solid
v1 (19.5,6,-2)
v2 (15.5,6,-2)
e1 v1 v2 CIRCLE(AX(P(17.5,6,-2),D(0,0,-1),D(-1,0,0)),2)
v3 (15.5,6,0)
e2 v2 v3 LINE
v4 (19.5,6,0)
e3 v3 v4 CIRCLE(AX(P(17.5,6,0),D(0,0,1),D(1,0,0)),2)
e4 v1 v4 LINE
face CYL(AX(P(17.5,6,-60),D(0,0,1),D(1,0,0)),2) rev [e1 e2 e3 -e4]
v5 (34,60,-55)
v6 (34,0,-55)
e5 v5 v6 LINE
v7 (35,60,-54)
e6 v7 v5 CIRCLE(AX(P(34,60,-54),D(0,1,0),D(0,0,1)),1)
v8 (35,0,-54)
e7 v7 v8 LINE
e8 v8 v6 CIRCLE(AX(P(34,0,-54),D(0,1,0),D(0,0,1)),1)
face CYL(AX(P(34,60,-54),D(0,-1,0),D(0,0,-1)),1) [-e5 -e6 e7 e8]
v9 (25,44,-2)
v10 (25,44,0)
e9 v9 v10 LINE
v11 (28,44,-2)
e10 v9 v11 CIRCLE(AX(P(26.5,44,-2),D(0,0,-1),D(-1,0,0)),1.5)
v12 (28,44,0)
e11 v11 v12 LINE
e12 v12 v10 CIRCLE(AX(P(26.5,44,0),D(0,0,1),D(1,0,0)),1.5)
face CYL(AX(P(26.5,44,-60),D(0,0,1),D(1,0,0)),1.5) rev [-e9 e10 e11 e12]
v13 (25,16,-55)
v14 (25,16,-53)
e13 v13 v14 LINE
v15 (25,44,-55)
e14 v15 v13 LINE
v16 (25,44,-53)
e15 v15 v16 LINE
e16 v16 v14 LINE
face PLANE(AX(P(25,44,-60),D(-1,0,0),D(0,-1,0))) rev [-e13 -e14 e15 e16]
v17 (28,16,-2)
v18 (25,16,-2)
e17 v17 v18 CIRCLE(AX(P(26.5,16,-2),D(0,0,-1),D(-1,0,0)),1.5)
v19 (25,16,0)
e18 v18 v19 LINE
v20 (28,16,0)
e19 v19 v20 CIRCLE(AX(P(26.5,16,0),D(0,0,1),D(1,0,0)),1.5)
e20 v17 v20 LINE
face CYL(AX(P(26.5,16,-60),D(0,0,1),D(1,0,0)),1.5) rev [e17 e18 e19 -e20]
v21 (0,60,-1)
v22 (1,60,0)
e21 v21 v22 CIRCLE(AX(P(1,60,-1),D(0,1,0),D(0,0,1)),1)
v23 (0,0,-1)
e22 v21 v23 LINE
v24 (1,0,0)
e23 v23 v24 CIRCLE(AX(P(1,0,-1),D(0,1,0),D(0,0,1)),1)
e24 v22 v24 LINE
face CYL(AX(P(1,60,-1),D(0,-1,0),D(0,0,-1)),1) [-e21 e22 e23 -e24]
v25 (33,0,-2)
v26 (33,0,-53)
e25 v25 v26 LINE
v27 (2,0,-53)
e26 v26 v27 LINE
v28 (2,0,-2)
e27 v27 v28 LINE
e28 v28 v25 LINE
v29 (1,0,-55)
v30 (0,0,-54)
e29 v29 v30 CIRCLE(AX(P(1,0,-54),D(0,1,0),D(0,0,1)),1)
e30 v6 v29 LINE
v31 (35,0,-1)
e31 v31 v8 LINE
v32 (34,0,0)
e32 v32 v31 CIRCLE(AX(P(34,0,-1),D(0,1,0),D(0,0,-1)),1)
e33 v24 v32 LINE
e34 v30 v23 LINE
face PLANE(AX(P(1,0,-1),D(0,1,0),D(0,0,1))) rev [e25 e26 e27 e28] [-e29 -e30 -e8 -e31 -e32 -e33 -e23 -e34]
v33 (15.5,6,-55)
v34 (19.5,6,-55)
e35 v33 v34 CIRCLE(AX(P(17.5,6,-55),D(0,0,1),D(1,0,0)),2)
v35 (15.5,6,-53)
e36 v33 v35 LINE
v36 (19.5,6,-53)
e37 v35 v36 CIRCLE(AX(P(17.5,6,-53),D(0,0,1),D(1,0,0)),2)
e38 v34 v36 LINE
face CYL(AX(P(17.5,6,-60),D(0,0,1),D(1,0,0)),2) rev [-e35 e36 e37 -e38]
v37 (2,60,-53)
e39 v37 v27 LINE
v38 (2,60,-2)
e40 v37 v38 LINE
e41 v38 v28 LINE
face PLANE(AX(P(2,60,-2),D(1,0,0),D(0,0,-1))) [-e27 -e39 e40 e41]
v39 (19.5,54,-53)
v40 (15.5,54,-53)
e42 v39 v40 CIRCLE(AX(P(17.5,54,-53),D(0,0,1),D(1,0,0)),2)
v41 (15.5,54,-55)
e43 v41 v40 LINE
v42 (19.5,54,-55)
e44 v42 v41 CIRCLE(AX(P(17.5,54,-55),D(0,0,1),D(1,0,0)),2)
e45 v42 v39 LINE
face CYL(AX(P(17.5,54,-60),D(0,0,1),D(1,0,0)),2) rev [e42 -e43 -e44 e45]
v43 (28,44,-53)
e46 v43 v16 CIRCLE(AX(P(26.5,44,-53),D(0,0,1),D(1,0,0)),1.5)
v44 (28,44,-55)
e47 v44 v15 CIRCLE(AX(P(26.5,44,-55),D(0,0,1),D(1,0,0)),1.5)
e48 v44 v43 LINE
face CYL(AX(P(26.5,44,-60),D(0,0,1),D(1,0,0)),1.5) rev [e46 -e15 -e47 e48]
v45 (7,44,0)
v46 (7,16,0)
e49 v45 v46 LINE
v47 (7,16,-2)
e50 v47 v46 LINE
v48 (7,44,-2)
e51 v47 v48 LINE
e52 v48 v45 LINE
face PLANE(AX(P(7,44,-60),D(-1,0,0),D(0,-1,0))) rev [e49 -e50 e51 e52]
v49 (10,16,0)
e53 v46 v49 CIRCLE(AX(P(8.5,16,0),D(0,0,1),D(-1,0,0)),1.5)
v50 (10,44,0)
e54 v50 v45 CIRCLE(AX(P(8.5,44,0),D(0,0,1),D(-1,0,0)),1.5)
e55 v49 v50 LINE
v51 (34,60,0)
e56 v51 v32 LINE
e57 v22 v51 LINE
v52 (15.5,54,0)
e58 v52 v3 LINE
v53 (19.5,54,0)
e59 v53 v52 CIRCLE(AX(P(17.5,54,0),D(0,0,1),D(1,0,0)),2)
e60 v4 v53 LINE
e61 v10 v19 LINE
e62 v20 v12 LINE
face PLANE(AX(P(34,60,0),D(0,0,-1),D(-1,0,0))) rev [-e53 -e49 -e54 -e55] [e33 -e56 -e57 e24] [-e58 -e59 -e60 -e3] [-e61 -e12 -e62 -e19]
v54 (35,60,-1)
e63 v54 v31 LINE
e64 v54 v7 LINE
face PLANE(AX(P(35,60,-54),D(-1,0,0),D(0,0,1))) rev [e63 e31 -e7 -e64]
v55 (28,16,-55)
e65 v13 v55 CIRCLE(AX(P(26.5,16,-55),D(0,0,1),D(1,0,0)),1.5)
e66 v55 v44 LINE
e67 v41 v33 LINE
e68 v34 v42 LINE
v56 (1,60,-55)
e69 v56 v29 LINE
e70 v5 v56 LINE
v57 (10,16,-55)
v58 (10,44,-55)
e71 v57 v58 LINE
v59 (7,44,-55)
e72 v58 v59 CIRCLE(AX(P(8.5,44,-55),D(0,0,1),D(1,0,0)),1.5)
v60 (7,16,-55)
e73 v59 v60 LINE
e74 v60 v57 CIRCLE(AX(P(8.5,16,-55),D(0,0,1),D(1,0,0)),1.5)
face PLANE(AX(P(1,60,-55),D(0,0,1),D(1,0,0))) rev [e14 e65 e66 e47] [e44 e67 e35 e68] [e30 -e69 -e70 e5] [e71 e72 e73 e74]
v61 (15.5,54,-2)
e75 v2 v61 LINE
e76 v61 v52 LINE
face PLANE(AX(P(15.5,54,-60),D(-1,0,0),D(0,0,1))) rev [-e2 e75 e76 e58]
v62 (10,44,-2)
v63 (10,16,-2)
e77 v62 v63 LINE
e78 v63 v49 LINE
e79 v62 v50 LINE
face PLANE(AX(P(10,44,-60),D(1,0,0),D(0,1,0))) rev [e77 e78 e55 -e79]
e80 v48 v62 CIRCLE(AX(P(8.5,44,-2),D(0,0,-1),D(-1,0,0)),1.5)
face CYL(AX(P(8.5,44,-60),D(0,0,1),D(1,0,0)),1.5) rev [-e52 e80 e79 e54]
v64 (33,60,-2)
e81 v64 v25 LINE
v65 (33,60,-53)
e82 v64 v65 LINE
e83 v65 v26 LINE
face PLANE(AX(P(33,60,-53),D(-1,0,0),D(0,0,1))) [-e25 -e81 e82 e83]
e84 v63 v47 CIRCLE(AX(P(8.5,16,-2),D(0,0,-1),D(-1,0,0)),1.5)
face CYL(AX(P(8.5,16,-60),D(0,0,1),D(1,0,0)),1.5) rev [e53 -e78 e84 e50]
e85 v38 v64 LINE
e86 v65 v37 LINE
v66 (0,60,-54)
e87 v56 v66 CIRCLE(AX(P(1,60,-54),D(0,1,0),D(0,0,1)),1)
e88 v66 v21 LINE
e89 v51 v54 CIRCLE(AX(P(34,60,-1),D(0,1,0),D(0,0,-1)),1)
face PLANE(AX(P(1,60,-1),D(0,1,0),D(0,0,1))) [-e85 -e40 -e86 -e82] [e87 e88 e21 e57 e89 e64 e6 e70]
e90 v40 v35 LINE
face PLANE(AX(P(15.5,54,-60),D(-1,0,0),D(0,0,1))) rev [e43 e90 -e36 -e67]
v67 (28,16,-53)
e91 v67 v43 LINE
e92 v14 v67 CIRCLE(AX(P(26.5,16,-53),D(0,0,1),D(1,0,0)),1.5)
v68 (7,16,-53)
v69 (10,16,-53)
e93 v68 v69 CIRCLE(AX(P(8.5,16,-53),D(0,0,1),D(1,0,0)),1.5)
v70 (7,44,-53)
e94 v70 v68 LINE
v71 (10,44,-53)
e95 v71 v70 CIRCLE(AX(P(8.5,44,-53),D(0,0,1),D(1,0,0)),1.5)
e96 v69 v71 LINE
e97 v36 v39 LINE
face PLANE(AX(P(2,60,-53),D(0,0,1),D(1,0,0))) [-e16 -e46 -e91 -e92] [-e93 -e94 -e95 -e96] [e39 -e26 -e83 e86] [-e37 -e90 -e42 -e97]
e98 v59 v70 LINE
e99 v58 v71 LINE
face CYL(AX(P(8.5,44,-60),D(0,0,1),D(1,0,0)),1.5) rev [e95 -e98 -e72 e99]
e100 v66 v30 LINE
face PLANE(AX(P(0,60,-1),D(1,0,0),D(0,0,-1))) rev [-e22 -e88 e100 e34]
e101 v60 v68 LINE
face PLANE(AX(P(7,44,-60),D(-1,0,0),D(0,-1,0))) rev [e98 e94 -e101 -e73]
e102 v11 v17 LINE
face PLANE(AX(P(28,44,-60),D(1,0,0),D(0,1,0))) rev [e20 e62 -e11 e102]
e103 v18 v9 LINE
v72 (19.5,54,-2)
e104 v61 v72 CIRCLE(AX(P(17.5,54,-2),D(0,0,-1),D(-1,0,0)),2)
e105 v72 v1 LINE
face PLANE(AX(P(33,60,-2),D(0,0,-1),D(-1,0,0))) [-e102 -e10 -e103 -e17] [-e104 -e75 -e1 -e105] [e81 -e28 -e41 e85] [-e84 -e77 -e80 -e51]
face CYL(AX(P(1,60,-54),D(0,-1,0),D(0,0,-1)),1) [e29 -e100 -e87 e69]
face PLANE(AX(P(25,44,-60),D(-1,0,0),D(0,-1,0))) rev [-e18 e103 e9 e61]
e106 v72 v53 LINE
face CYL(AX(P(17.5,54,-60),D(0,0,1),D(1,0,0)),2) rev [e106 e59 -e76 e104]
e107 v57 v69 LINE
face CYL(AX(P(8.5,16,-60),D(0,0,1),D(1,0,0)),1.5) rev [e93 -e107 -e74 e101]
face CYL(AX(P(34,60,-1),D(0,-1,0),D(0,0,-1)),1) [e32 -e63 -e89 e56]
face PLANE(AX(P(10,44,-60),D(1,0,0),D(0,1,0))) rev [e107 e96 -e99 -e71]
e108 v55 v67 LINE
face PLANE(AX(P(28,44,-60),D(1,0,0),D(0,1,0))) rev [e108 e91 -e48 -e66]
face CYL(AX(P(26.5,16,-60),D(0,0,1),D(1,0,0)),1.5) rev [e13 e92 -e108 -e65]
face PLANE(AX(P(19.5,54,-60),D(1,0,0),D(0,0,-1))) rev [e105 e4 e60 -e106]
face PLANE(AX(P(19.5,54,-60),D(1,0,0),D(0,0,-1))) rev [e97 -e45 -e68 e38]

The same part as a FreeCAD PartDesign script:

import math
import FreeCAD as App
import Part
import Sketcher
from FreeCAD import Vector
Q = App.Units.Quantity


def add_polygon(sketch, points):
    """Adds a closed chain of lines whose ends are joined by coincident constraints."""
    first, n = sketch.GeometryCount, len(points)
    for a, b in zip(points, points[1:] + points[:1]):
        sketch.addGeometry(Part.LineSegment(App.Vector(*a, 0), App.Vector(*b, 0)), False)
    for i in range(n):
        sketch.addConstraint(Sketcher.Constraint("Coincident", first + i, 2, first + (i + 1) % n, 1))

doc = App.newDocument("Part")
body = doc.addObject("PartDesign::Body", "Body")

# Sketch on XZ plane
sketch1 = doc.addObject("Sketcher::SketchObject", "Sketch")
body.addObject(sketch1)
sketch1.AttachmentSupport = (doc.XZ_Plane, [""])
sketch1.MapMode = "FlatFace"
sketch1.addGeometry(Part.LineSegment(Vector(0, -54, 0), Vector(0, -1, 0)), False)  # 0
sketch1.addGeometry(Part.ArcOfCircle(Part.Circle(Vector(1, -1, 0), Vector(0, 0, 1), 1), math.radians(90), math.radians(180)), False)  # 1
sketch1.addGeometry(Part.LineSegment(Vector(1, 0, 0), Vector(34, 0, 0)), False)  # 2
sketch1.addGeometry(Part.ArcOfCircle(Part.Circle(Vector(34, -1, 0), Vector(0, 0, 1), 1), math.radians(0), math.radians(90)), False)  # 3
sketch1.addGeometry(Part.LineSegment(Vector(35, -1, 0), Vector(35, -54, 0)), False)  # 4
sketch1.addGeometry(Part.ArcOfCircle(Part.Circle(Vector(34, -54, 0), Vector(0, 0, 1), 1), math.radians(-90), math.radians(0)), False)  # 5
sketch1.addGeometry(Part.LineSegment(Vector(34, -55, 0), Vector(1, -55, 0)), False)  # 6
sketch1.addGeometry(Part.ArcOfCircle(Part.Circle(Vector(1, -54, 0), Vector(0, 0, 1), 1), math.radians(-180), math.radians(-90)), False)  # 7
add_polygon(sketch1, [(2, -2), (2, -53), (33, -53), (33, -2)])  # lines 8-11
sketch1.addConstraint(Sketcher.Constraint("Tangent", 0, 2, 1, 2))
sketch1.addConstraint(Sketcher.Constraint("Tangent", 1, 1, 2, 1))
sketch1.addConstraint(Sketcher.Constraint("Tangent", 2, 2, 3, 2))
sketch1.addConstraint(Sketcher.Constraint("Tangent", 3, 1, 4, 1))
sketch1.addConstraint(Sketcher.Constraint("Tangent", 4, 2, 5, 2))
sketch1.addConstraint(Sketcher.Constraint("Tangent", 5, 1, 6, 1))
sketch1.addConstraint(Sketcher.Constraint("Tangent", 6, 2, 7, 2))
sketch1.addConstraint(Sketcher.Constraint("Tangent", 7, 1, 0, 1))
sketch1.addConstraint(Sketcher.Constraint("Vertical", 0))
sketch1.addConstraint(Sketcher.Constraint("Horizontal", 2))
sketch1.addConstraint(Sketcher.Constraint("Vertical", 4))
sketch1.addConstraint(Sketcher.Constraint("Horizontal", 6))
sketch1.addConstraint(Sketcher.Constraint("Vertical", 8))
sketch1.addConstraint(Sketcher.Constraint("Horizontal", 9))
sketch1.addConstraint(Sketcher.Constraint("Vertical", 10))
sketch1.addConstraint(Sketcher.Constraint("Horizontal", 11))
sketch1.addConstraint(Sketcher.Constraint("Equal", 1, 3))
sketch1.addConstraint(Sketcher.Constraint("Equal", 3, 5))
sketch1.addConstraint(Sketcher.Constraint("Equal", 5, 7))
sketch1.addConstraint(Sketcher.Constraint("PointOnObject", 0, 2, -2))
sketch1.addConstraint(Sketcher.Constraint("PointOnObject", 1, 1, -1))
sketch1.addConstraint(Sketcher.Constraint("Radius", 1, Q("1 mm")))
sketch1.addConstraint(Sketcher.Constraint("DistanceX", 2, 1, 2, 2, Q("33 mm")))
sketch1.addConstraint(Sketcher.Constraint("DistanceX", 9, 1, 9, 2, Q("31 mm")))
sketch1.addConstraint(Sketcher.Constraint("DistanceY", 0, 1, 0, 2, Q("53 mm")))
sketch1.addConstraint(Sketcher.Constraint("DistanceY", 8, 2, 8, 1, Q("51 mm")))
sketch1.addConstraint(Sketcher.Constraint("DistanceX", -1, 1, 8, 2, Q("2 mm")))
sketch1.addConstraint(Sketcher.Constraint("DistanceY", 8, 2, -1, 1, Q("53 mm")))
pad1 = doc.addObject("PartDesign::Pad", "Pad")
body.addObject(pad1)
pad1.Profile = sketch1
pad1.Length = 60
pad1.Reversed = True

# Sketch on XY plane
sketch2 = doc.addObject("Sketcher::SketchObject", "Sketch001")
body.addObject(sketch2)
sketch2.AttachmentSupport = (doc.XY_Plane, [""])
sketch2.MapMode = "FlatFace"
sketch2.addGeometry(Part.LineSegment(Vector(15.5, 54, 0), Vector(15.5, 6, 0)), False)
sketch2.addGeometry(Part.ArcOfCircle(Part.Circle(Vector(17.5, 6, 0), Vector(0, 0, 1), 2), math.radians(180), math.radians(360)), False)
sketch2.addGeometry(Part.LineSegment(Vector(19.5, 6, 0), Vector(19.5, 54, 0)), False)
sketch2.addGeometry(Part.ArcOfCircle(Part.Circle(Vector(17.5, 54, 0), Vector(0, 0, 1), 2), math.radians(0), math.radians(180)), False)
sketch2.addGeometry(Part.LineSegment(Vector(28, 16, 0), Vector(28, 44, 0)), False)
sketch2.addGeometry(Part.ArcOfCircle(Part.Circle(Vector(26.5, 44, 0), Vector(0, 0, 1), 1.5), math.radians(0), math.radians(180)), False)
sketch2.addGeometry(Part.LineSegment(Vector(25, 44, 0), Vector(25, 16, 0)), False)
sketch2.addGeometry(Part.ArcOfCircle(Part.Circle(Vector(26.5, 16, 0), Vector(0, 0, 1), 1.5), math.radians(180), math.radians(360)), False)
sketch2.addGeometry(Part.LineSegment(Vector(7, 44, 0), Vector(7, 16, 0)), False)
sketch2.addGeometry(Part.ArcOfCircle(Part.Circle(Vector(8.5, 16, 0), Vector(0, 0, 1), 1.5), math.radians(180), math.radians(360)), False)
sketch2.addGeometry(Part.LineSegment(Vector(10, 16, 0), Vector(10, 44, 0)), False)
sketch2.addGeometry(Part.ArcOfCircle(Part.Circle(Vector(8.5, 44, 0), Vector(0, 0, 1), 1.5), math.radians(0), math.radians(180)), False)
sketch2.addConstraint(Sketcher.Constraint("Tangent", 0, 2, 1, 1))
sketch2.addConstraint(Sketcher.Constraint("Tangent", 1, 2, 2, 1))
sketch2.addConstraint(Sketcher.Constraint("Tangent", 2, 2, 3, 1))
sketch2.addConstraint(Sketcher.Constraint("Tangent", 3, 2, 0, 1))
sketch2.addConstraint(Sketcher.Constraint("Tangent", 4, 2, 5, 1))
sketch2.addConstraint(Sketcher.Constraint("Tangent", 5, 2, 6, 1))
sketch2.addConstraint(Sketcher.Constraint("Tangent", 6, 2, 7, 1))
sketch2.addConstraint(Sketcher.Constraint("Tangent", 7, 2, 4, 1))
sketch2.addConstraint(Sketcher.Constraint("Tangent", 8, 2, 9, 1))
sketch2.addConstraint(Sketcher.Constraint("Tangent", 9, 2, 10, 1))
sketch2.addConstraint(Sketcher.Constraint("Tangent", 10, 2, 11, 1))
sketch2.addConstraint(Sketcher.Constraint("Tangent", 11, 2, 8, 1))
sketch2.addConstraint(Sketcher.Constraint("Vertical", 0))
sketch2.addConstraint(Sketcher.Constraint("Vertical", 2))
sketch2.addConstraint(Sketcher.Constraint("Vertical", 4))
sketch2.addConstraint(Sketcher.Constraint("Vertical", 6))
sketch2.addConstraint(Sketcher.Constraint("Vertical", 8))
sketch2.addConstraint(Sketcher.Constraint("Vertical", 10))
sketch2.addConstraint(Sketcher.Constraint("Equal", 7, 9))
sketch2.addConstraint(Sketcher.Constraint("Horizontal", 7, 3, 9, 3))
sketch2.addConstraint(Sketcher.Constraint("Horizontal", 5, 3, 11, 3))
sketch2.addConstraint(Sketcher.Constraint("Radius", 1, Q("2 mm")))
sketch2.addConstraint(Sketcher.Constraint("Radius", 5, Q("1.5 mm")))
sketch2.addConstraint(Sketcher.Constraint("DistanceY", 0, 2, 0, 1, Q("48 mm")))
sketch2.addConstraint(Sketcher.Constraint("DistanceY", 4, 1, 4, 2, Q("28 mm")))
sketch2.addConstraint(Sketcher.Constraint("DistanceY", -1, 1, 1, 3, Q("6 mm")))
sketch2.addConstraint(Sketcher.Constraint("DistanceY", -1, 1, 5, 3, Q("44 mm")))
sketch2.addConstraint(Sketcher.Constraint("DistanceX", -1, 1, 4, 2, Q("28 mm")))
sketch2.addConstraint(Sketcher.Constraint("DistanceX", -1, 1, 8, 2, Q("7 mm")))
sketch2.addConstraint(Sketcher.Constraint("DistanceX", 3, 3, 5, 3, Q("9 mm")))
pocket1 = doc.addObject("PartDesign::Pocket", "Pocket")
body.addObject(pocket1)
pocket1.Profile = sketch2
pocket1.Length = 60

doc.recompute()
